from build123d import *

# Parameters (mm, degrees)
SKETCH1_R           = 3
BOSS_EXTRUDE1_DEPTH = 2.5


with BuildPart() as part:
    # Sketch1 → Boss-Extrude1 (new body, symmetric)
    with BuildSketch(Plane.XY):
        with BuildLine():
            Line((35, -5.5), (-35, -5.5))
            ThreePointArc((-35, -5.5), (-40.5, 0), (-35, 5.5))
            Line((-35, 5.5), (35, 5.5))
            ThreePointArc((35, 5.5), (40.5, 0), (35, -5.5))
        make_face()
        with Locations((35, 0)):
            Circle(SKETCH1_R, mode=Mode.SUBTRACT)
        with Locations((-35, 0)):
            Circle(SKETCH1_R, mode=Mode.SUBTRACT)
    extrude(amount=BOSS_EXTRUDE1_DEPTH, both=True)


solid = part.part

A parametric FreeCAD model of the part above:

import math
import FreeCAD as App
import Part
import Sketcher

doc = App.newDocument("Part")
body = doc.addObject("PartDesign::Body", "Body")

# Sketch on XY plane
sketch1 = doc.addObject("Sketcher::SketchObject", "Sketch")
body.addObject(sketch1)
sketch1.AttachmentSupport = (doc.XY_Plane, [""])
sketch1.MapMode = "FlatFace"
sketch1.addGeometry([
    Part.LineSegment(App.Vector(-35, -5.5, 0), App.Vector(35, -5.5, 0)),  # 0
    Part.ArcOfCircle(Part.Circle(App.Vector(35, 0, 0), App.Vector(0, 0, 1), 5.5), math.radians(-90), math.radians(90)),  # 1
    Part.LineSegment(App.Vector(35, 5.5, 0), App.Vector(-35, 5.5, 0)),  # 2
    Part.ArcOfCircle(Part.Circle(App.Vector(-35, 0, 0), App.Vector(0, 0, 1), 5.5), math.radians(90), math.radians(270)),  # 3
    Part.Circle(App.Vector(35, 0, 0), App.Vector(0, 0, 1), 3),  # 4
    Part.Circle(App.Vector(-35, 0, 0), App.Vector(0, 0, 1), 3),  # 5
], False)
sketch1.addConstraint([
    Sketcher.Constraint("Tangent", 0, 2, 1, 1),
    Sketcher.Constraint("Tangent", 1, 2, 2, 1),
    Sketcher.Constraint("Tangent", 2, 2, 3, 1),
    Sketcher.Constraint("Tangent", 3, 2, 0, 1),
    Sketcher.Constraint("Horizontal", 0),
    Sketcher.Constraint("Horizontal", 2),
    Sketcher.Constraint("Coincident", 4, 3, 1, 3),
    Sketcher.Constraint("Coincident", 5, 3, 3, 3),
    Sketcher.Constraint("Equal", 4, 5),
    Sketcher.Constraint("Symmetric", 1, 3, 3, 3, -1, 1),
    Sketcher.Constraint("Diameter", 4, 6.0),
    Sketcher.Constraint("Radius", 1, 5.5),
    Sketcher.Constraint("DistanceX", 0, 1, 0, 2, 70.0),
])
pad1 = doc.addObject("PartDesign::Pad", "Pad")
body.addObject(pad1)
pad1.Profile = sketch1
pad1.Length = 5
pad1.Midplane = True

doc.recompute()
